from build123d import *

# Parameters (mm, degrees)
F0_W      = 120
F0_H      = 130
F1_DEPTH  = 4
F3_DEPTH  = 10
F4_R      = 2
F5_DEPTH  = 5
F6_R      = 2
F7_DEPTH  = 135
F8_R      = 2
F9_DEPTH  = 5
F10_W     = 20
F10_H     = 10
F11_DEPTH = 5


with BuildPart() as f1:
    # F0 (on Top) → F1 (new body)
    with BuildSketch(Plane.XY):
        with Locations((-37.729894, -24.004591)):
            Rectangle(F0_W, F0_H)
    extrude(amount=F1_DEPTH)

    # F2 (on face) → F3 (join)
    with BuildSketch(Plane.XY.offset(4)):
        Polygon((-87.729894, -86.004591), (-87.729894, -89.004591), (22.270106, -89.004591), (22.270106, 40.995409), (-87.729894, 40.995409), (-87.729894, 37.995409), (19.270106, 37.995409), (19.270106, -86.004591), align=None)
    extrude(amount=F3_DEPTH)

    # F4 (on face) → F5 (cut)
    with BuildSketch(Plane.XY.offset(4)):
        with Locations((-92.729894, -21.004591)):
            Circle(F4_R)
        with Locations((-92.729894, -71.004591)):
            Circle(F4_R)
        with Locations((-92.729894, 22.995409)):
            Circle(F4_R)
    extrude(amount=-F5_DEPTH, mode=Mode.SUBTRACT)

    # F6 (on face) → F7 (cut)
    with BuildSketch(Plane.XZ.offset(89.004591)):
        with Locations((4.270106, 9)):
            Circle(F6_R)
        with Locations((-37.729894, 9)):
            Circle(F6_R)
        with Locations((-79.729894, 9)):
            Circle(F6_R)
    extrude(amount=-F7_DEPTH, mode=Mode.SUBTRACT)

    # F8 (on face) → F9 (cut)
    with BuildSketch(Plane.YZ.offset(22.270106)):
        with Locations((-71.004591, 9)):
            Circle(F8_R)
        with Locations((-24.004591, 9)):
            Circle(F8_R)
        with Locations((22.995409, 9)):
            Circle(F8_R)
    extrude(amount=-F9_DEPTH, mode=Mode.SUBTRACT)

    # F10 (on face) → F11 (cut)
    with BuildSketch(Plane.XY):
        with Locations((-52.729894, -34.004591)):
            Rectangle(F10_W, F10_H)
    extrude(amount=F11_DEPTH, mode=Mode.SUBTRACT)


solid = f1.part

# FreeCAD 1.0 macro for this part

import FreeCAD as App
import Part
import Sketcher

V = App.Vector
Q = App.Units.Quantity

doc = App.newDocument("Part")
body = doc.addObject("PartDesign::Body", "Body")

# Sketch on XY plane
sketch1 = body.newObject("Sketcher::SketchObject", "Sketch")
sketch1.AttachmentSupport = (doc.getObject("XY_Plane"), [""])
sketch1.MapMode = "FlatFace"
sketch1.addGeometry([
    Part.LineSegment(V(-98, 41, 0), V(-98, -89, 0)),
    Part.LineSegment(V(-98, -89, 0), V(22, -89, 0)),
    Part.LineSegment(V(22, -89, 0), V(22, 41, 0)),
    Part.LineSegment(V(22, 41, 0), V(-98, 41, 0)),
], False)
sketch1.addConstraint([
    Sketcher.Constraint("Coincident", 0, 2, 1, 1),
    Sketcher.Constraint("Coincident", 1, 2, 2, 1),
    Sketcher.Constraint("Coincident", 2, 2, 3, 1),
    Sketcher.Constraint("Coincident", 3, 2, 0, 1),
    Sketcher.Constraint("Vertical", 0),
    Sketcher.Constraint("Horizontal", 1),
    Sketcher.Constraint("Vertical", 2),
    Sketcher.Constraint("Horizontal", 3),
    Sketcher.Constraint("DistanceX", 1, 1, 1, 2, Q("120 mm")),
    Sketcher.Constraint("DistanceY", 0, 2, 0, 1, Q("130 mm")),
    Sketcher.Constraint("DistanceY", 0, 2, -1, 1, Q("89.004591 mm")),
    Sketcher.Constraint("DistanceX", 0, 2, -1, 1, Q("97.729894 mm")),
])
pad1 = body.newObject("PartDesign::Pad", "Pad")
pad1.Profile = sketch1
pad1.Length = 4

# Sketch on XY plane
sketch2 = body.newObject("Sketcher::SketchObject", "Sketch001")
sketch2.AttachmentSupport = (doc.getObject("XY_Plane"), [""])
sketch2.MapMode = "FlatFace"
sketch2.AttachmentOffset = App.Placement(V(0, 0, 4), App.Rotation())
sketch2.addGeometry([
    Part.LineSegment(V(-87.7, -86, 0), V(-87.7, -89, 0)),  # 0
    Part.LineSegment(V(-87.7, -89, 0), V(22.3, -89, 0)),  # 1
    Part.LineSegment(V(22.3, -89, 0), V(22.3, 41, 0)),  # 2
    Part.LineSegment(V(22.3, 41, 0), V(-87.7, 41, 0)),  # 3
    Part.LineSegment(V(-87.7, 41, 0), V(-87.7, 38, 0)),  # 4
    Part.LineSegment(V(-87.7, 38, 0), V(19.3, 38, 0)),  # 5
    Part.LineSegment(V(19.3, 38, 0), V(19.3, -86, 0)),  # 6
    Part.LineSegment(V(19.3, -86, 0), V(-87.7, -86, 0)),  # 7
], False)
sketch2.addConstraint([
    Sketcher.Constraint("Coincident", 0, 2, 1, 1),
    Sketcher.Constraint("Coincident", 1, 2, 2, 1),
    Sketcher.Constraint("Coincident", 2, 2, 3, 1),
    Sketcher.Constraint("Coincident", 3, 2, 4, 1),
    Sketcher.Constraint("Coincident", 4, 2, 5, 1),
    Sketcher.Constraint("Coincident", 5, 2, 6, 1),
    Sketcher.Constraint("Coincident", 6, 2, 7, 1),
    Sketcher.Constraint("Coincident", 7, 2, 0, 1),
    Sketcher.Constraint("Vertical", 0),
    Sketcher.Constraint("Horizontal", 1),
    Sketcher.Constraint("Vertical", 2),
    Sketcher.Constraint("Horizontal", 3),
    Sketcher.Constraint("Vertical", 4),
    Sketcher.Constraint("Horizontal", 5),
    Sketcher.Constraint("Vertical", 6),
    Sketcher.Constraint("Horizontal", 7),
    Sketcher.Constraint("Vertical", 0, 2, 3, 2),
    Sketcher.Constraint("Equal", 0, 4),
    Sketcher.Constraint("DistanceX", 1, 1, 1, 2, Q("110 mm")),
    Sketcher.Constraint("DistanceX", 5, 1, 5, 2, Q("107 mm")),
    Sketcher.Constraint("DistanceY", 0, 2, 0, 1, Q("3 mm")),
    Sketcher.Constraint("DistanceY", 2, 1, 2, 2, Q("130 mm")),
    Sketcher.Constraint("DistanceY", 0, 2, -1, 1, Q("89.004591 mm")),
    Sketcher.Constraint("DistanceX", 0, 2, -1, 1, Q("87.729894 mm")),
])
pad2 = body.newObject("PartDesign::Pad", "Pad001")
pad2.Profile = sketch2
pad2.Length = 10

# Sketch on XY plane
sketch3 = body.newObject("Sketcher::SketchObject", "Sketch002")
sketch3.AttachmentSupport = (doc.getObject("XY_Plane"), [""])
sketch3.MapMode = "FlatFace"
sketch3.AttachmentOffset = App.Placement(V(0, 0, 4), App.Rotation())
sketch3.addGeometry([
    Part.Circle(V(-92.7, -21, 0), V(0, 0, 1), 2),
    Part.Circle(V(-92.7, -71, 0), V(0, 0, 1), 2),
    Part.Circle(V(-92.7, 23, 0), V(0, 0, 1), 2),
], False)
sketch3.addConstraint([
    Sketcher.Constraint("Equal", 0, 1),
    Sketcher.Constraint("Equal", 1, 2),
    Sketcher.Constraint("Vertical", 0, 3, 1, 3),
    Sketcher.Constraint("Vertical", 1, 3, 2, 3),
    Sketcher.Constraint("Diameter", 0, Q("4 mm")),
    Sketcher.Constraint("DistanceY", 1, 3, 0, 3, Q("50 mm")),
    Sketcher.Constraint("DistanceY", 0, 3, 2, 3, Q("44 mm")),
    Sketcher.Constraint("DistanceY", 0, 3, -1, 1, Q("21.004591 mm")),
    Sketcher.Constraint("DistanceX", 0, 3, -1, 1, Q("92.729894 mm")),
])
pocket1 = body.newObject("PartDesign::Pocket", "Pocket")
pocket1.Profile = sketch3
pocket1.Length = 5

# Sketch on XZ plane
sketch4 = body.newObject("Sketcher::SketchObject", "Sketch003")
sketch4.AttachmentSupport = (doc.getObject("XZ_Plane"), [""])
sketch4.MapMode = "FlatFace"
sketch4.AttachmentOffset = App.Placement(V(0, 0, 89.004591), App.Rotation())
sketch4.addGeometry([
    Part.Circle(V(4.3, 9, 0), V(0, 0, 1), 2),
    Part.Circle(V(-37.7, 9, 0), V(0, 0, 1), 2),
    Part.Circle(V(-79.7, 9, 0), V(0, 0, 1), 2),
], False)
sketch4.addConstraint([
    Sketcher.Constraint("Equal", 0, 1),
    Sketcher.Constraint("Equal", 1, 2),
    Sketcher.Constraint("Horizontal", 0, 3, 1, 3),
    Sketcher.Constraint("Horizontal", 1, 3, 2, 3),
    Sketcher.Constraint("Diameter", 0, Q("4 mm")),
    Sketcher.Constraint("DistanceY", -1, 1, 0, 3, Q("9 mm")),
    Sketcher.Constraint("DistanceX", 1, 3, 0, 3, Q("42 mm")),
    Sketcher.Constraint("DistanceX", 2, 3, 1, 3, Q("42 mm")),
    Sketcher.Constraint("DistanceX", -1, 1, 0, 3, Q("4.270106 mm")),
])
pocket2 = body.newObject("PartDesign::Pocket", "Pocket001")
pocket2.Profile = sketch4
pocket2.Length = 135

# Sketch on YZ plane
sketch5 = body.newObject("Sketcher::SketchObject", "Sketch004")
sketch5.AttachmentSupport = (doc.getObject("YZ_Plane"), [""])
sketch5.MapMode = "FlatFace"
sketch5.AttachmentOffset = App.Placement(V(0, 0, 22.270106), App.Rotation())
sketch5.addGeometry([
    Part.Circle(V(-71, 9, 0), V(0, 0, 1), 2),
    Part.Circle(V(-24, 9, 0), V(0, 0, 1), 2),
    Part.Circle(V(23, 9, 0), V(0, 0, 1), 2),
], False)
sketch5.addConstraint([
    Sketcher.Constraint("Equal", 0, 1),
    Sketcher.Constraint("Equal", 1, 2),
    Sketcher.Constraint("Horizontal", 0, 3, 1, 3),
    Sketcher.Constraint("Horizontal", 1, 3, 2, 3),
    Sketcher.Constraint("Diameter", 0, Q("4 mm")),
    Sketcher.Constraint("DistanceY", -1, 1, 0, 3, Q("9 mm")),
    Sketcher.Constraint("DistanceX", 0, 3, 1, 3, Q("47 mm")),
    Sketcher.Constraint("DistanceX", 1, 3, 2, 3, Q("47 mm")),
    Sketcher.Constraint("DistanceX", 0, 3, -1, 1, Q("71.004591 mm")),
])
pocket3 = body.newObject("PartDesign::Pocket", "Pocket002")
pocket3.Profile = sketch5
pocket3.Length = 5

# Sketch on XY plane
sketch6 = body.newObject("Sketcher::SketchObject", "Sketch005")
sketch6.AttachmentSupport = (doc.getObject("XY_Plane"), [""])
sketch6.MapMode = "FlatFace"
sketch6.addGeometry([
    Part.LineSegment(V(-63, -29, 0), V(-63, -39, 0)),
    Part.LineSegment(V(-63, -39, 0), V(-43, -39, 0)),
    Part.LineSegment(V(-43, -39, 0), V(-43, -29, 0)),
    Part.LineSegment(V(-43, -29, 0), V(-63, -29, 0)),
], False)
sketch6.addConstraint([
    Sketcher.Constraint("Coincident", 0, 2, 1, 1),
    Sketcher.Constraint("Coincident", 1, 2, 2, 1),
    Sketcher.Constraint("Coincident", 2, 2, 3, 1),
    Sketcher.Constraint("Coincident", 3, 2, 0, 1),
    Sketcher.Constraint("Vertical", 0),
    Sketcher.Constraint("Horizontal", 1),
    Sketcher.Constraint("Vertical", 2),
    Sketcher.Constraint("Horizontal", 3),
    Sketcher.Constraint("DistanceX", 1, 1, 1, 2, Q("20 mm")),
    Sketcher.Constraint("DistanceY", 0, 2, 0, 1, Q("10 mm")),
    Sketcher.Constraint("DistanceY", 0, 2, -1, 1, Q("39.004591 mm")),
    Sketcher.Constraint("DistanceX", 0, 2, -1, 1, Q("62.729894 mm")),
])
pocket4 = body.newObject("PartDesign::Pocket", "Pocket003")
pocket4.Profile = sketch6
pocket4.Length = 5
pocket4.Reversed = True

doc.recompute()
